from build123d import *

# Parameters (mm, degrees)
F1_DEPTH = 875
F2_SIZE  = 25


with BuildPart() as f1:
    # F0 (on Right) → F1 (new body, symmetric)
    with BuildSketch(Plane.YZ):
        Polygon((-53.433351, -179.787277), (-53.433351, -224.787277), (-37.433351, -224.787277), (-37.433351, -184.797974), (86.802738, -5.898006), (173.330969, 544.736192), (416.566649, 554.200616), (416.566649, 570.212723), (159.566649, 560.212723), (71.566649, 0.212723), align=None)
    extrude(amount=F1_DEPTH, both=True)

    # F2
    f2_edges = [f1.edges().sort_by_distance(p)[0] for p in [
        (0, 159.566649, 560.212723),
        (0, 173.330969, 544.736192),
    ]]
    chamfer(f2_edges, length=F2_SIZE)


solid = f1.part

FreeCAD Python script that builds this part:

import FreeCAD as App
import Part
import Sketcher

V = App.Vector


def edges_at(feature, points):
    """Names of the edges that pass closest to the given points."""
    edges = feature.Shape.Edges
    near = lambda p: min(range(len(edges)), key=lambda i: edges[i].distToShape(Part.Vertex(*p))[0])
    return sorted({f"Edge{near(p) + 1}" for p in points})

doc = App.newDocument("Part")
params = doc.addObject("Spreadsheet::Sheet", "Params")
for row, (alias, value) in enumerate([
    ("sketch1_width", "16 mm"),
    ("sketch1_height", "45 mm"),
    ("pad1_length", "1750 mm"),
    ("chamfer_size", "25 mm"),
], start=1):
    params.set(f"A{row}", alias)
    params.set(f"B{row}", "=" + value)
    params.setAlias(f"B{row}", alias)

body = doc.addObject("PartDesign::Body", "Body")

sketch1 = body.newObject("Sketcher::SketchObject", "Sketch")
sketch1.AttachmentSupport = (doc.getObject("YZ_Plane"), [""])
sketch1.MapMode = "FlatFace"
sketch1.addGeometry(Part.LineSegment(V(-53.433351, -179.787277, 0), V(-53.433351, -224.787277, 0)), False)
sketch1.addGeometry(Part.LineSegment(V(-53.433351, -224.787277, 0), V(-37.433351, -224.787277, 0)), False)
sketch1.addGeometry(Part.LineSegment(V(-37.433351, -224.787277, 0), V(-37.433351, -184.797974, 0)), False)
sketch1.addGeometry(Part.LineSegment(V(-37.433351, -184.797974, 0), V(86.802738, -5.898006, 0)), False)
sketch1.addGeometry(Part.LineSegment(V(86.802738, -5.898006, 0), V(173.330969, 544.736192, 0)), False)
sketch1.addGeometry(Part.LineSegment(V(173.330969, 544.736192, 0), V(416.566649, 554.200616, 0)), False)
sketch1.addGeometry(Part.LineSegment(V(416.566649, 554.200616, 0), V(416.566649, 570.212723, 0)), False)
sketch1.addGeometry(Part.LineSegment(V(416.566649, 570.212723, 0), V(159.566649, 560.212723, 0)), False)
sketch1.addGeometry(Part.LineSegment(V(159.566649, 560.212723, 0), V(71.566649, 0.212723, 0)), False)
sketch1.addGeometry(Part.LineSegment(V(71.566649, 0.212723, 0), V(-53.433351, -179.787277, 0)), False)
sketch1.addConstraint(Sketcher.Constraint("Coincident", 0, 2, 1, 1))
sketch1.addConstraint(Sketcher.Constraint("Coincident", 1, 2, 2, 1))
sketch1.addConstraint(Sketcher.Constraint("Coincident", 2, 2, 3, 1))
sketch1.addConstraint(Sketcher.Constraint("Coincident", 3, 2, 4, 1))
sketch1.addConstraint(Sketcher.Constraint("Coincident", 4, 2, 5, 1))
sketch1.addConstraint(Sketcher.Constraint("Coincident", 5, 2, 6, 1))
sketch1.addConstraint(Sketcher.Constraint("Coincident", 6, 2, 7, 1))
sketch1.addConstraint(Sketcher.Constraint("Coincident", 7, 2, 8, 1))
sketch1.addConstraint(Sketcher.Constraint("Coincident", 8, 2, 9, 1))
sketch1.addConstraint(Sketcher.Constraint("Coincident", 9, 2, 0, 1))
sketch1.addConstraint(Sketcher.Constraint("Vertical", 0))
sketch1.addConstraint(Sketcher.Constraint("Horizontal", 1))
sketch1.addConstraint(Sketcher.Constraint("Vertical", 2))
sketch1.addConstraint(Sketcher.Constraint("Vertical", 6))
sketch1.addConstraint(Sketcher.Constraint("Parallel", 5, 7))
sketch1.addConstraint(Sketcher.Constraint("Parallel", 4, 8))
sketch1.addConstraint(Sketcher.Constraint("Parallel", 3, 9))
sketch1.addConstraint(Sketcher.Constraint("DistanceX", 1, 1, 1, 2, 16.0))
sketch1.addConstraint(Sketcher.Constraint("DistanceY", 0, 2, 0, 1, 45.0))
sketch1.addConstraint(Sketcher.Constraint("DistanceX", 2, 2, 5, 2, 454.0))
sketch1.addConstraint(Sketcher.Constraint("DistanceY", 1, 2, 6, 2, 795.0))
sketch1.addConstraint(Sketcher.Constraint("DistanceX", 7, 2, 5, 2, 257.0))
sketch1.addConstraint(Sketcher.Constraint("DistanceY", 7, 2, 6, 2, 10.0))
sketch1.addConstraint(Sketcher.Constraint("DistanceX", 2, 2, 8, 2, 109.0))
sketch1.addConstraint(Sketcher.Constraint("DistanceY", 1, 2, 8, 2, 225.0))
sketch1.addConstraint(Sketcher.Constraint("DistanceY", 3, 2, 4, 2, 550.634198))
sketch1.addConstraint(Sketcher.Constraint("DistanceY", 2, 1, 2, 2, 39.989303))
sketch1.addConstraint(Sketcher.Constraint("DistanceY", 6, 1, 6, 2, 16.012107))
sketch1.addConstraint(Sketcher.Constraint("DistanceX", 0, 2, -1, 1, 53.433351))
sketch1.addConstraint(Sketcher.Constraint("DistanceY", -1, 1, 4, 2, 544.736192))
sketch1.setExpression("Constraints[17]", "Params.sketch1_width")
sketch1.setExpression("Constraints[18]", "Params.sketch1_height")
pad1 = body.newObject("PartDesign::Pad", "Pad")
pad1.Profile = sketch1
pad1.setExpression("Length", "Params.pad1_length")
pad1.Midplane = True
doc.recompute()

chamfer = body.newObject("PartDesign::Chamfer", "Chamfer")
chamfer.Base = (pad1, edges_at(pad1, [(0, 159.567, 560.213), (0, 173.331, 544.736)]))
chamfer.setExpression("Size", "Params.chamfer_size")

doc.recompute()
